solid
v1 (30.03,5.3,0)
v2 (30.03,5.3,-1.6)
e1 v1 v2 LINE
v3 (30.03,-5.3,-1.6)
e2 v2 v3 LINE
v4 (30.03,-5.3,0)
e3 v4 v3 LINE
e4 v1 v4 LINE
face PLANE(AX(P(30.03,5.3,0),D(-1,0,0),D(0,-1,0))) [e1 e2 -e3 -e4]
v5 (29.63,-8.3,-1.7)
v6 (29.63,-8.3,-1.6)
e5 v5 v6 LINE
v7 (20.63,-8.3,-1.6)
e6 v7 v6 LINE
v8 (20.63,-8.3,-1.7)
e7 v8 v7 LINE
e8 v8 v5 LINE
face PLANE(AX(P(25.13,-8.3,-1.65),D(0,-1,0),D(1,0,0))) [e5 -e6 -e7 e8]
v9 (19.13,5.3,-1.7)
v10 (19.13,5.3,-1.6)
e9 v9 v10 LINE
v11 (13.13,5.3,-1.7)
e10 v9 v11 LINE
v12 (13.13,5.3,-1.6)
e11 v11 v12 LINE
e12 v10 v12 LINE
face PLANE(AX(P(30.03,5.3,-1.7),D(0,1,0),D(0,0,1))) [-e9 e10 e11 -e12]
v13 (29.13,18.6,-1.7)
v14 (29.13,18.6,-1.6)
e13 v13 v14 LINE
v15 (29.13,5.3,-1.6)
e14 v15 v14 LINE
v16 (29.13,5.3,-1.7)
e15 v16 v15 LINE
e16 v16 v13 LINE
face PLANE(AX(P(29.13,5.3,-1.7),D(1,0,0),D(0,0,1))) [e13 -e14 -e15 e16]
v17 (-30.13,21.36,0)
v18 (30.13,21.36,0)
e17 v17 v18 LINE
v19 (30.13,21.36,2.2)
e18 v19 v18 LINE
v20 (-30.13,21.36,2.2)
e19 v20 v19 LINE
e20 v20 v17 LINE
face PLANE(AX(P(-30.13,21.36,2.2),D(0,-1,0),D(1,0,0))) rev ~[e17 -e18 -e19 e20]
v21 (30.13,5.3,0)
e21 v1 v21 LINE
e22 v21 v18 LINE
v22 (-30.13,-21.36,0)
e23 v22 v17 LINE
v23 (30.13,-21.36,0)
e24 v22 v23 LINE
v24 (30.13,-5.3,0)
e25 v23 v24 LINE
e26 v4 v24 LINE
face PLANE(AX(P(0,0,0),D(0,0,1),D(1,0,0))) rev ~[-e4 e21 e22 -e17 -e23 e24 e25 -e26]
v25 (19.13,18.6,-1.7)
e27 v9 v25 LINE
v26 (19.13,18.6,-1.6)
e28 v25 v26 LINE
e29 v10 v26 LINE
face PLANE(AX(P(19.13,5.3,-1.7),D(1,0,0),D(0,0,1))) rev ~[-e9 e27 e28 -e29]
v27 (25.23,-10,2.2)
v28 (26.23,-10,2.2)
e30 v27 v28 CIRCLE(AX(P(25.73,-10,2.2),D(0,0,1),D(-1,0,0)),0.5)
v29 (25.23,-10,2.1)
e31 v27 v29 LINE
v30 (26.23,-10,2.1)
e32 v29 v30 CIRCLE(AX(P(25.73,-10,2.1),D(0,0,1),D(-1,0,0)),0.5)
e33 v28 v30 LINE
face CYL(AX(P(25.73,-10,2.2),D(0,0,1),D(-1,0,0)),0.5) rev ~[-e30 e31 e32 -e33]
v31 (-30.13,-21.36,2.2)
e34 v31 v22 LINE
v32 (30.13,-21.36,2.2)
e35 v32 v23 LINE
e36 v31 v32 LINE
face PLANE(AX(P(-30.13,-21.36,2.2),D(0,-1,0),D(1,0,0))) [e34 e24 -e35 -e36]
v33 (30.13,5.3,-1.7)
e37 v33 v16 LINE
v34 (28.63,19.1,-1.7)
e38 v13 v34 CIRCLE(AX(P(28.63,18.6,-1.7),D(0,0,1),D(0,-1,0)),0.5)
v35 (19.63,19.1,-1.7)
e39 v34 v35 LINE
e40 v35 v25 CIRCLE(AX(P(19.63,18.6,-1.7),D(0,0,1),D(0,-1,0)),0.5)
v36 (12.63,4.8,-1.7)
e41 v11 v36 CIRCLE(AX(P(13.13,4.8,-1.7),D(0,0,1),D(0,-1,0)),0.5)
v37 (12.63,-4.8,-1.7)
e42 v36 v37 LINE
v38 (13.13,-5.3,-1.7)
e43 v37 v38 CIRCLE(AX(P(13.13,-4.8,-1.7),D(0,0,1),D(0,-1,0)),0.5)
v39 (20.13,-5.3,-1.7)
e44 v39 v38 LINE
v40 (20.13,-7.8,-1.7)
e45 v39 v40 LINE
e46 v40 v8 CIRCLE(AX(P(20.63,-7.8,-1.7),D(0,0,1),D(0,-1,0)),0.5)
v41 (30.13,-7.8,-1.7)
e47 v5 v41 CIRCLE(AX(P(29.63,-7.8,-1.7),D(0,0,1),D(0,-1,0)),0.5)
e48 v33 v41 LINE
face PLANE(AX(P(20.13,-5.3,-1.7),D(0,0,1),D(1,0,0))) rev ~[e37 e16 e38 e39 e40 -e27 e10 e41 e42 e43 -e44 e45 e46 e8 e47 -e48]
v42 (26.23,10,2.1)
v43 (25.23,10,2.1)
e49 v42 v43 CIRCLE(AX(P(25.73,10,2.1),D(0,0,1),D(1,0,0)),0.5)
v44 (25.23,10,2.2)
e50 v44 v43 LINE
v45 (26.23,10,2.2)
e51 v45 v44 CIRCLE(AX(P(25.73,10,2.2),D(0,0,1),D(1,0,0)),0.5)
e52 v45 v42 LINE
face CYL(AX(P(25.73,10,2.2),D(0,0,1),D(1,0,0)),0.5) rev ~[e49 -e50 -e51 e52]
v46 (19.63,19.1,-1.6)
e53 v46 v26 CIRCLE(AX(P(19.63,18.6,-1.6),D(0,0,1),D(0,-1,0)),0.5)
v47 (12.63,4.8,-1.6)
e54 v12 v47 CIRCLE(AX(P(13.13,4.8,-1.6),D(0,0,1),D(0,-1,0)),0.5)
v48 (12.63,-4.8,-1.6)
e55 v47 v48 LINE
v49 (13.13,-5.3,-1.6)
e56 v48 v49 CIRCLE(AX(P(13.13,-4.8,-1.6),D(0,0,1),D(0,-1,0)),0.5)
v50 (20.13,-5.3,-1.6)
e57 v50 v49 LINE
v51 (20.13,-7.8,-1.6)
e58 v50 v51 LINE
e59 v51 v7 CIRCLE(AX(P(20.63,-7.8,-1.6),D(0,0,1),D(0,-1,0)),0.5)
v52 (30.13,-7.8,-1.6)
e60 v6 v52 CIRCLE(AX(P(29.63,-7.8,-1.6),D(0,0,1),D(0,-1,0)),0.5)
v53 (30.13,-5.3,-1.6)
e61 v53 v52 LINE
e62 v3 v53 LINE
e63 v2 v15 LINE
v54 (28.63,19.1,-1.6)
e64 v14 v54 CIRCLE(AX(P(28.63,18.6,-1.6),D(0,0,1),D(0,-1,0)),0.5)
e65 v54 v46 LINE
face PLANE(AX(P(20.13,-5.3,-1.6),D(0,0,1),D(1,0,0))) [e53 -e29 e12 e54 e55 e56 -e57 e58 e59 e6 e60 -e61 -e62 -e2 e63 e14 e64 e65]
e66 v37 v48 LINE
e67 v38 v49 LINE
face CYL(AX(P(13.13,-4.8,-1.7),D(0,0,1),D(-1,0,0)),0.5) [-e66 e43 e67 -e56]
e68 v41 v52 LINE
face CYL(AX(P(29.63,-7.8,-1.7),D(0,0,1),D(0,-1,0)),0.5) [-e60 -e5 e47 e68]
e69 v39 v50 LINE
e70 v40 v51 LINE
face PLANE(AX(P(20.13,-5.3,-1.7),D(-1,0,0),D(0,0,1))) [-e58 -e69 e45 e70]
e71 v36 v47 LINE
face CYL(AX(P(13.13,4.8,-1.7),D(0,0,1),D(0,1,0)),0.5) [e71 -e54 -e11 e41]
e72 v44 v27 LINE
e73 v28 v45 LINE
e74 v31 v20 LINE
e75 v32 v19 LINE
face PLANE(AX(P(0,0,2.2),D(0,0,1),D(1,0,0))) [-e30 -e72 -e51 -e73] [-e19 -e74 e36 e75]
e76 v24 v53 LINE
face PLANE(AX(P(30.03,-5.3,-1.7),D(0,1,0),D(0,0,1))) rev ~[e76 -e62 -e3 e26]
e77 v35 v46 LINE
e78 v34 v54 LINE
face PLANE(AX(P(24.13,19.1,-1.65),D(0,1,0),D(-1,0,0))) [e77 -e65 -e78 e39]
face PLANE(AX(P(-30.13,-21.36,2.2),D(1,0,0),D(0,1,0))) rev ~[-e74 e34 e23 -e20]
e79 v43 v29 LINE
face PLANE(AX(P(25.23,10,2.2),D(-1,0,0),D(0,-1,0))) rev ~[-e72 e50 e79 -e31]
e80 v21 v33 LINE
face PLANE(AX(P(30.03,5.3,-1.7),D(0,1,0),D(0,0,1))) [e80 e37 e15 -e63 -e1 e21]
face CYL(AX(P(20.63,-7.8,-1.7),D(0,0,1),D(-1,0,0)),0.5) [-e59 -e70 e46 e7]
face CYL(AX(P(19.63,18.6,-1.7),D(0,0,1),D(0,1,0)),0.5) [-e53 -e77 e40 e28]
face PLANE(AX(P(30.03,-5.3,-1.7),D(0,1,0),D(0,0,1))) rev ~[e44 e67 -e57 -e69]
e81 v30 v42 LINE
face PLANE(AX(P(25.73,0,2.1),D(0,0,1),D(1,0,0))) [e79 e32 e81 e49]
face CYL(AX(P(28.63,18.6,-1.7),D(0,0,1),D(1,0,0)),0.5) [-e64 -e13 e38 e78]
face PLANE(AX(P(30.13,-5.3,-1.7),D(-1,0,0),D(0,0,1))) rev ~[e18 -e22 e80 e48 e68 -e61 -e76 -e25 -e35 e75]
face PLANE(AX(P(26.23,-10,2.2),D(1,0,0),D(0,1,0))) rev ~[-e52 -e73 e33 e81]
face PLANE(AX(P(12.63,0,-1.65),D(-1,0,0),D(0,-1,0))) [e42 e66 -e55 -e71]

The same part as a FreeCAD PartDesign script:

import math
import FreeCAD as App
import Part
import Sketcher
from FreeCAD import Vector
Q = App.Units.Quantity


def edges_at(feature, points):
    """Names of the edges that pass closest to the given points."""
    edges = feature.Shape.Edges
    near = lambda p: min(range(len(edges)), key=lambda i: edges[i].distToShape(Part.Vertex(*p))[0])
    return sorted({f"Edge{near(p) + 1}" for p in points})


def add_polygon(sketch, points):
    """Adds a closed chain of lines whose ends are joined by coincident constraints."""
    first, n = sketch.GeometryCount, len(points)
    for a, b in zip(points, points[1:] + points[:1]):
        sketch.addGeometry(Part.LineSegment(App.Vector(*a, 0), App.Vector(*b, 0)), False)
    for i in range(n):
        sketch.addConstraint(Sketcher.Constraint("Coincident", first + i, 2, first + (i + 1) % n, 1))

doc = App.newDocument("Part")
body = doc.addObject("PartDesign::Body", "Body")

# Sketch on XY plane
sketch1 = body.newObject("Sketcher::SketchObject", "Sketch")
sketch1.AttachmentSupport = (doc.getObject("XY_Plane"), [""])
sketch1.MapMode = "FlatFace"
add_polygon(sketch1, [(-29, 20), (-29, -20), (29, -20), (29, 20)])  # lines 0-3
sketch1.addConstraint(Sketcher.Constraint("Vertical", 0))
sketch1.addConstraint(Sketcher.Constraint("Horizontal", 1))
sketch1.addConstraint(Sketcher.Constraint("Vertical", 2))
sketch1.addConstraint(Sketcher.Constraint("Horizontal", 3))
sketch1.addConstraint(Sketcher.Constraint("Symmetric", 0, 2, 2, 2, -1, 1))
sketch1.addConstraint(Sketcher.Constraint("DistanceX", 1, 1, 1, 2, Q("57.26 mm")))
sketch1.addConstraint(Sketcher.Constraint("DistanceY", 0, 2, 0, 1, Q("40.62 mm")))
pad1 = body.newObject("PartDesign::Pad", "Pad")
pad1.Profile = sketch1
pad1.Length = 2.2

# Sketch on XY plane
sketch2 = body.newObject("Sketcher::SketchObject", "Sketch001")
sketch2.AttachmentSupport = (doc.getObject("XY_Plane"), [""])
sketch2.MapMode = "FlatFace"
sketch2.AttachmentOffset = App.Placement(Vector(0, 0, 2.2), App.Rotation())
add_polygon(sketch2, [(-30, 21), (-30, -21), (30, -21), (30, 21)])  # lines 0-3
sketch2.addConstraint(Sketcher.Constraint("Vertical", 0))
sketch2.addConstraint(Sketcher.Constraint("Horizontal", 1))
sketch2.addConstraint(Sketcher.Constraint("Vertical", 2))
sketch2.addConstraint(Sketcher.Constraint("Horizontal", 3))
sketch2.addConstraint(Sketcher.Constraint("Symmetric", 0, 2, 2, 2, -1, 1))
sketch2.addConstraint(Sketcher.Constraint("DistanceX", 1, 1, 1, 2, Q("60.26 mm")))
sketch2.addConstraint(Sketcher.Constraint("DistanceY", 0, 2, 0, 1, Q("42.72 mm")))
pad2 = body.newObject("PartDesign::Pad", "Pad001")
pad2.Profile = sketch2
pad2.Length = 2.2
pad2.Reversed = True

# Sketch on XY plane
sketch3 = body.newObject("Sketcher::SketchObject", "Sketch002")
sketch3.AttachmentSupport = (doc.getObject("XY_Plane"), [""])
sketch3.MapMode = "FlatFace"
add_polygon(sketch3, [(30.03, -5.3), (30.03, 5.3), (30.13, 5.3), (30.13, -5.3)])  # lines 0-3
sketch3.addConstraint(Sketcher.Constraint("Vertical", 0))
sketch3.addConstraint(Sketcher.Constraint("Horizontal", 1))
sketch3.addConstraint(Sketcher.Constraint("Vertical", 2))
sketch3.addConstraint(Sketcher.Constraint("Horizontal", 3))
sketch3.addConstraint(Sketcher.Constraint("DistanceX", 1, 1, 1, 2, Q("0.1 mm")))
sketch3.addConstraint(Sketcher.Constraint("DistanceY", 0, 1, 0, 2, Q("10.6 mm")))
sketch3.addConstraint(Sketcher.Constraint("DistanceY", -1, 1, 0, 2, Q("5.3 mm")))
sketch3.addConstraint(Sketcher.Constraint("DistanceX", -1, 1, 0, 2, Q("30.03 mm")))
pad3 = body.newObject("PartDesign::Pad", "Pad002")
pad3.Profile = sketch3
pad3.Length = 1.7
pad3.Reversed = True

# Sketch on YZ plane
sketch4 = body.newObject("Sketcher::SketchObject", "Sketch003")
sketch4.AttachmentSupport = (doc.getObject("YZ_Plane"), [""])
sketch4.MapMode = "FlatFace"
sketch4.AttachmentOffset = App.Placement(Vector(0, 0, 30.03), App.Rotation())
add_polygon(sketch4, [(5.3, -1.6), (5.3, -1.7), (-5.3, -1.7), (-5.3, -1.6)])  # lines 0-3
sketch4.addConstraint(Sketcher.Constraint("Vertical", 0))
sketch4.addConstraint(Sketcher.Constraint("Horizontal", 1))
sketch4.addConstraint(Sketcher.Constraint("Vertical", 2))
sketch4.addConstraint(Sketcher.Constraint("Horizontal", 3))
sketch4.addConstraint(Sketcher.Constraint("DistanceX", 1, 2, 1, 1, Q("10.6 mm")))
sketch4.addConstraint(Sketcher.Constraint("DistanceY", 0, 2, 0, 1, Q("0.1 mm")))
sketch4.addConstraint(Sketcher.Constraint("DistanceX", -1, 1, 0, 2, Q("5.3 mm")))
sketch4.addConstraint(Sketcher.Constraint("DistanceY", 0, 2, -1, 1, Q("1.7 mm")))
pad4 = body.newObject("PartDesign::Pad", "Pad003")
pad4.Profile = sketch4
pad4.Length = 17.4
pad4.Reversed = True

# Sketch on XY plane
sketch5 = body.newObject("Sketcher::SketchObject", "Sketch004")
sketch5.AttachmentSupport = (doc.getObject("XY_Plane"), [""])
sketch5.MapMode = "FlatFace"
sketch5.AttachmentOffset = App.Placement(Vector(0, 0, 2.2), App.Rotation())
add_polygon(sketch5, [(-27, 19), (-27, -19), (23, -19), (23, 19)])  # lines 0-3
sketch5.addConstraint(Sketcher.Constraint("Vertical", 0))
sketch5.addConstraint(Sketcher.Constraint("Horizontal", 1))
sketch5.addConstraint(Sketcher.Constraint("Vertical", 2))
sketch5.addConstraint(Sketcher.Constraint("Horizontal", 3))
sketch5.addConstraint(Sketcher.Constraint("DistanceX", 1, 1, 1, 2, Q("49.66 mm")))
sketch5.addConstraint(Sketcher.Constraint("DistanceY", 0, 2, 0, 1, Q("37.42 mm")))
sketch5.addConstraint(Sketcher.Constraint("DistanceX", 0, 2, -1, 1, Q("27.03 mm")))
sketch5.addConstraint(Sketcher.Constraint("DistanceY", 0, 2, -1, 1, Q("18.71 mm")))
pad5 = body.newObject("PartDesign::Pad", "Pad004")
pad5.Profile = sketch5
pad5.Length = 1
pad5.Reversed = True
doc.recompute()

fillet = body.newObject("PartDesign::Fillet", "Fillet")
fillet.Base = (pad5, edges_at(pad5, [(12.63, -5.3, -1.65), (12.63, 5.3, -1.65)]))
fillet.Radius = 0.5

# Sketch on XZ plane
sketch6 = body.newObject("Sketcher::SketchObject", "Sketch005")
sketch6.AttachmentSupport = (doc.getObject("XZ_Plane"), [""])
sketch6.MapMode = "FlatFace"
sketch6.AttachmentOffset = App.Placement(Vector(0, 0, -5.3), App.Rotation())
add_polygon(sketch6, [(29.13, -1.6), (29.13, -1.7), (19.13, -1.7), (19.13, -1.6)])  # lines 0-3
sketch6.addConstraint(Sketcher.Constraint("Vertical", 0))
sketch6.addConstraint(Sketcher.Constraint("Horizontal", 1))
sketch6.addConstraint(Sketcher.Constraint("Vertical", 2))
sketch6.addConstraint(Sketcher.Constraint("Horizontal", 3))
sketch6.addConstraint(Sketcher.Constraint("DistanceX", 1, 2, 1, 1, Q("10 mm")))
sketch6.addConstraint(Sketcher.Constraint("DistanceY", 0, 2, 0, 1, Q("0.1 mm")))
sketch6.addConstraint(Sketcher.Constraint("DistanceY", 0, 2, -1, 1, Q("1.7 mm")))
sketch6.addConstraint(Sketcher.Constraint("DistanceX", -1, 1, 0, 2, Q("29.13 mm")))
pad6 = body.newObject("PartDesign::Pad", "Pad005")
pad6.Profile = sketch6
pad6.Length = 13.8
pad6.Reversed = True
doc.recompute()

fillet2 = body.newObject("PartDesign::Fillet", "Fillet001")
fillet2.Base = (pad6, edges_at(pad6, [(19.13, 19.1, -1.65), (29.13, 19.1, -1.65)]))
fillet2.Radius = 0.5

# Sketch on XZ plane
sketch7 = body.newObject("Sketcher::SketchObject", "Sketch006")
sketch7.AttachmentSupport = (doc.getObject("XZ_Plane"), [""])
sketch7.MapMode = "FlatFace"
sketch7.AttachmentOffset = App.Placement(Vector(0, 0, 5.3), App.Rotation())
add_polygon(sketch7, [(20.13, -1.6), (20.13, -1.7), (30.13, -1.7), (30.13, -1.6)])  # lines 0-3
sketch7.addConstraint(Sketcher.Constraint("Vertical", 0))
sketch7.addConstraint(Sketcher.Constraint("Horizontal", 1))
sketch7.addConstraint(Sketcher.Constraint("Vertical", 2))
sketch7.addConstraint(Sketcher.Constraint("Horizontal", 3))
sketch7.addConstraint(Sketcher.Constraint("DistanceX", 1, 1, 1, 2, Q("10 mm")))
sketch7.addConstraint(Sketcher.Constraint("DistanceY", 0, 2, 0, 1, Q("0.1 mm")))
sketch7.addConstraint(Sketcher.Constraint("DistanceY", 0, 2, -1, 1, Q("1.7 mm")))
sketch7.addConstraint(Sketcher.Constraint("DistanceX", -1, 1, 0, 2, Q("20.13 mm")))
pad7 = body.newObject("PartDesign::Pad", "Pad006")
pad7.Profile = sketch7
pad7.Length = 3

# Sketch on XY plane
sketch8 = body.newObject("Sketcher::SketchObject", "Sketch007")
sketch8.AttachmentSupport = (doc.getObject("XY_Plane"), [""])
sketch8.MapMode = "FlatFace"
sketch8.AttachmentOffset = App.Placement(Vector(0, 0, 2.2), App.Rotation())
sketch8.addGeometry(Part.ArcOfCircle(Part.Circle(Vector(25.7, 10, 0), Vector(0, 0, 1), 0.5), math.radians(0), math.radians(180)), False)
sketch8.addGeometry(Part.LineSegment(Vector(25.2, 10, 0), Vector(25.2, -10, 0)), False)
sketch8.addGeometry(Part.ArcOfCircle(Part.Circle(Vector(25.7, -10, 0), Vector(0, 0, 1), 0.5), math.radians(180), math.radians(360)), False)
sketch8.addGeometry(Part.LineSegment(Vector(26.2, -10, 0), Vector(26.2, 10, 0)), False)
sketch8.addConstraint(Sketcher.Constraint("Tangent", 0, 2, 1, 1))
sketch8.addConstraint(Sketcher.Constraint("Tangent", 1, 2, 2, 1))
sketch8.addConstraint(Sketcher.Constraint("Tangent", 2, 2, 3, 1))
sketch8.addConstraint(Sketcher.Constraint("Tangent", 3, 2, 0, 1))
sketch8.addConstraint(Sketcher.Constraint("Vertical", 1))
sketch8.addConstraint(Sketcher.Constraint("Vertical", 3))
sketch8.addConstraint(Sketcher.Constraint("Radius", 0, Q("0.5 mm")))
sketch8.addConstraint(Sketcher.Constraint("DistanceY", 1, 2, 1, 1, Q("20 mm")))
sketch8.addConstraint(Sketcher.Constraint("DistanceY", -1, 1, 0, 3, Q("10 mm")))
sketch8.addConstraint(Sketcher.Constraint("DistanceX", -1, 1, 0, 3, Q("25.73 mm")))
pocket1 = body.newObject("PartDesign::Pocket", "Pocket")
pocket1.Profile = sketch8
pocket1.Length = 0.1
doc.recompute()

fillet3 = body.newObject("PartDesign::Fillet", "Fillet002")
fillet3.Base = (pocket1, edges_at(pocket1, [(20.13, -8.3, -1.65)]))
fillet3.Radius = 0.5
doc.recompute()

fillet4 = body.newObject("PartDesign::Fillet", "Fillet003")
fillet4.Base = (fillet3, edges_at(fillet3, [(30.13, -8.3, -1.65)]))
fillet4.Radius = 0.5

doc.recompute()
